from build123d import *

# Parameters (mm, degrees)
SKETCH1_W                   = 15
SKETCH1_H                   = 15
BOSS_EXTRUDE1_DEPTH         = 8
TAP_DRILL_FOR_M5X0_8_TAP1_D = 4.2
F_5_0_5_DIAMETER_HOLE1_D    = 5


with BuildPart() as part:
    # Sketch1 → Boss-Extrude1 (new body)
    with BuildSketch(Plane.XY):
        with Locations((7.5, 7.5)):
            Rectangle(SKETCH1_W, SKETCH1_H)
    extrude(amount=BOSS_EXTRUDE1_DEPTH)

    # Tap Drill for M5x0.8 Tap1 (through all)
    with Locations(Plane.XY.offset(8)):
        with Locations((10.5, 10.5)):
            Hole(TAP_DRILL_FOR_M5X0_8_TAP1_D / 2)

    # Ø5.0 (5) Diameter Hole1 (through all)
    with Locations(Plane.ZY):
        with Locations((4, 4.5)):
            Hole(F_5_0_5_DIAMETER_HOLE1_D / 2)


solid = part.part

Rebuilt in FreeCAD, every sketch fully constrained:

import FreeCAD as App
import Part
import Sketcher

V = App.Vector
Q = App.Units.Quantity

doc = App.newDocument("Part")
params = doc.addObject("Spreadsheet::Sheet", "Params")
for row, (alias, value) in enumerate([
    ("sketch1_width", "15 mm"),
    ("pad1_length", "8 mm"),
    ("sketch2_diameter", "4.2 mm"),
    ("hole_diameter", "4.2 mm"),
    ("sketch3_diameter", "5 mm"),
    ("hole2_diameter", "5 mm"),
], start=1):
    params.set(f"A{row}", alias)
    params.set(f"B{row}", "=" + value)
    params.setAlias(f"B{row}", alias)

body = doc.addObject("PartDesign::Body", "Body")

# Sketch on XY plane
sketch1 = body.newObject("Sketcher::SketchObject", "Sketch")
sketch1.AttachmentSupport = (doc.getObject("XY_Plane"), [""])
sketch1.MapMode = "FlatFace"
sketch1.addGeometry(Part.LineSegment(V(0, 15, 0), V(0, 0, 0)), False)
sketch1.addGeometry(Part.LineSegment(V(0, 0, 0), V(15, 0, 0)), False)
sketch1.addGeometry(Part.LineSegment(V(15, 0, 0), V(15, 15, 0)), False)
sketch1.addGeometry(Part.LineSegment(V(15, 15, 0), V(0, 15, 0)), False)
sketch1.addConstraint(Sketcher.Constraint("Coincident", 0, 2, 1, 1))
sketch1.addConstraint(Sketcher.Constraint("Coincident", 1, 2, 2, 1))
sketch1.addConstraint(Sketcher.Constraint("Coincident", 2, 2, 3, 1))
sketch1.addConstraint(Sketcher.Constraint("Coincident", 3, 2, 0, 1))
sketch1.addConstraint(Sketcher.Constraint("Vertical", 0))
sketch1.addConstraint(Sketcher.Constraint("Horizontal", 1))
sketch1.addConstraint(Sketcher.Constraint("Vertical", 2))
sketch1.addConstraint(Sketcher.Constraint("Horizontal", 3))
sketch1.addConstraint(Sketcher.Constraint("Coincident", 0, 2, -1, 1))
sketch1.addConstraint(Sketcher.Constraint("Equal", 3, 0))
sketch1.addConstraint(Sketcher.Constraint("DistanceX", 1, 1, 1, 2, Q("15 mm")))
sketch1.setExpression("Constraints[10]", "Params.sketch1_width")
pad1 = body.newObject("PartDesign::Pad", "Pad")
pad1.Profile = sketch1
pad1.setExpression("Length", "Params.pad1_length")

# Sketch on XY plane
sketch2 = body.newObject("Sketcher::SketchObject", "Sketch001")
sketch2.AttachmentSupport = (doc.getObject("XY_Plane"), [""])
sketch2.MapMode = "FlatFace"
sketch2.AttachmentOffset = App.Placement(V(0, 0, 8), App.Rotation())
sketch2.addGeometry(Part.Circle(V(10.5, 10.5, 0), V(0, 0, 1), 2.1), False)
sketch2.addConstraint(Sketcher.Constraint("Diameter", 0, Q("4.2 mm")))
sketch2.addConstraint(Sketcher.Constraint("DistanceX", -1, 1, 0, 3, Q("10.5 mm")))
sketch2.addConstraint(Sketcher.Constraint("DistanceY", -1, 1, 0, 3, Q("10.5 mm")))
sketch2.setExpression("Constraints[0]", "Params.sketch2_diameter")
doc.recompute()
hole = body.newObject("PartDesign::Hole", "Hole")
hole.Profile = sketch2
hole.ThreadType = "None"
hole.setExpression("Diameter", "Params.hole_diameter")
hole.DepthType = "ThroughAll"

# Sketch on YZ plane
sketch3 = body.newObject("Sketcher::SketchObject", "Sketch002")
sketch3.AttachmentSupport = (doc.getObject("YZ_Plane"), [""])
sketch3.MapMode = "FlatFace"
sketch3.addGeometry(Part.Circle(V(4.5, 4, 0), V(0, 0, 1), 2.5), False)
sketch3.addConstraint(Sketcher.Constraint("Diameter", 0, Q("5 mm")))
sketch3.addConstraint(Sketcher.Constraint("DistanceY", -1, 1, 0, 3, Q("4 mm")))
sketch3.addConstraint(Sketcher.Constraint("DistanceX", -1, 1, 0, 3, Q("4.5 mm")))
sketch3.setExpression("Constraints[0]", "Params.sketch3_diameter")
doc.recompute()
hole2 = body.newObject("PartDesign::Hole", "Hole001")
hole2.Profile = sketch3
hole2.ThreadType = "None"
hole2.setExpression("Diameter", "Params.hole2_diameter")
hole2.DepthType = "ThroughAll"
hole2.Reversed = True

doc.recompute()
